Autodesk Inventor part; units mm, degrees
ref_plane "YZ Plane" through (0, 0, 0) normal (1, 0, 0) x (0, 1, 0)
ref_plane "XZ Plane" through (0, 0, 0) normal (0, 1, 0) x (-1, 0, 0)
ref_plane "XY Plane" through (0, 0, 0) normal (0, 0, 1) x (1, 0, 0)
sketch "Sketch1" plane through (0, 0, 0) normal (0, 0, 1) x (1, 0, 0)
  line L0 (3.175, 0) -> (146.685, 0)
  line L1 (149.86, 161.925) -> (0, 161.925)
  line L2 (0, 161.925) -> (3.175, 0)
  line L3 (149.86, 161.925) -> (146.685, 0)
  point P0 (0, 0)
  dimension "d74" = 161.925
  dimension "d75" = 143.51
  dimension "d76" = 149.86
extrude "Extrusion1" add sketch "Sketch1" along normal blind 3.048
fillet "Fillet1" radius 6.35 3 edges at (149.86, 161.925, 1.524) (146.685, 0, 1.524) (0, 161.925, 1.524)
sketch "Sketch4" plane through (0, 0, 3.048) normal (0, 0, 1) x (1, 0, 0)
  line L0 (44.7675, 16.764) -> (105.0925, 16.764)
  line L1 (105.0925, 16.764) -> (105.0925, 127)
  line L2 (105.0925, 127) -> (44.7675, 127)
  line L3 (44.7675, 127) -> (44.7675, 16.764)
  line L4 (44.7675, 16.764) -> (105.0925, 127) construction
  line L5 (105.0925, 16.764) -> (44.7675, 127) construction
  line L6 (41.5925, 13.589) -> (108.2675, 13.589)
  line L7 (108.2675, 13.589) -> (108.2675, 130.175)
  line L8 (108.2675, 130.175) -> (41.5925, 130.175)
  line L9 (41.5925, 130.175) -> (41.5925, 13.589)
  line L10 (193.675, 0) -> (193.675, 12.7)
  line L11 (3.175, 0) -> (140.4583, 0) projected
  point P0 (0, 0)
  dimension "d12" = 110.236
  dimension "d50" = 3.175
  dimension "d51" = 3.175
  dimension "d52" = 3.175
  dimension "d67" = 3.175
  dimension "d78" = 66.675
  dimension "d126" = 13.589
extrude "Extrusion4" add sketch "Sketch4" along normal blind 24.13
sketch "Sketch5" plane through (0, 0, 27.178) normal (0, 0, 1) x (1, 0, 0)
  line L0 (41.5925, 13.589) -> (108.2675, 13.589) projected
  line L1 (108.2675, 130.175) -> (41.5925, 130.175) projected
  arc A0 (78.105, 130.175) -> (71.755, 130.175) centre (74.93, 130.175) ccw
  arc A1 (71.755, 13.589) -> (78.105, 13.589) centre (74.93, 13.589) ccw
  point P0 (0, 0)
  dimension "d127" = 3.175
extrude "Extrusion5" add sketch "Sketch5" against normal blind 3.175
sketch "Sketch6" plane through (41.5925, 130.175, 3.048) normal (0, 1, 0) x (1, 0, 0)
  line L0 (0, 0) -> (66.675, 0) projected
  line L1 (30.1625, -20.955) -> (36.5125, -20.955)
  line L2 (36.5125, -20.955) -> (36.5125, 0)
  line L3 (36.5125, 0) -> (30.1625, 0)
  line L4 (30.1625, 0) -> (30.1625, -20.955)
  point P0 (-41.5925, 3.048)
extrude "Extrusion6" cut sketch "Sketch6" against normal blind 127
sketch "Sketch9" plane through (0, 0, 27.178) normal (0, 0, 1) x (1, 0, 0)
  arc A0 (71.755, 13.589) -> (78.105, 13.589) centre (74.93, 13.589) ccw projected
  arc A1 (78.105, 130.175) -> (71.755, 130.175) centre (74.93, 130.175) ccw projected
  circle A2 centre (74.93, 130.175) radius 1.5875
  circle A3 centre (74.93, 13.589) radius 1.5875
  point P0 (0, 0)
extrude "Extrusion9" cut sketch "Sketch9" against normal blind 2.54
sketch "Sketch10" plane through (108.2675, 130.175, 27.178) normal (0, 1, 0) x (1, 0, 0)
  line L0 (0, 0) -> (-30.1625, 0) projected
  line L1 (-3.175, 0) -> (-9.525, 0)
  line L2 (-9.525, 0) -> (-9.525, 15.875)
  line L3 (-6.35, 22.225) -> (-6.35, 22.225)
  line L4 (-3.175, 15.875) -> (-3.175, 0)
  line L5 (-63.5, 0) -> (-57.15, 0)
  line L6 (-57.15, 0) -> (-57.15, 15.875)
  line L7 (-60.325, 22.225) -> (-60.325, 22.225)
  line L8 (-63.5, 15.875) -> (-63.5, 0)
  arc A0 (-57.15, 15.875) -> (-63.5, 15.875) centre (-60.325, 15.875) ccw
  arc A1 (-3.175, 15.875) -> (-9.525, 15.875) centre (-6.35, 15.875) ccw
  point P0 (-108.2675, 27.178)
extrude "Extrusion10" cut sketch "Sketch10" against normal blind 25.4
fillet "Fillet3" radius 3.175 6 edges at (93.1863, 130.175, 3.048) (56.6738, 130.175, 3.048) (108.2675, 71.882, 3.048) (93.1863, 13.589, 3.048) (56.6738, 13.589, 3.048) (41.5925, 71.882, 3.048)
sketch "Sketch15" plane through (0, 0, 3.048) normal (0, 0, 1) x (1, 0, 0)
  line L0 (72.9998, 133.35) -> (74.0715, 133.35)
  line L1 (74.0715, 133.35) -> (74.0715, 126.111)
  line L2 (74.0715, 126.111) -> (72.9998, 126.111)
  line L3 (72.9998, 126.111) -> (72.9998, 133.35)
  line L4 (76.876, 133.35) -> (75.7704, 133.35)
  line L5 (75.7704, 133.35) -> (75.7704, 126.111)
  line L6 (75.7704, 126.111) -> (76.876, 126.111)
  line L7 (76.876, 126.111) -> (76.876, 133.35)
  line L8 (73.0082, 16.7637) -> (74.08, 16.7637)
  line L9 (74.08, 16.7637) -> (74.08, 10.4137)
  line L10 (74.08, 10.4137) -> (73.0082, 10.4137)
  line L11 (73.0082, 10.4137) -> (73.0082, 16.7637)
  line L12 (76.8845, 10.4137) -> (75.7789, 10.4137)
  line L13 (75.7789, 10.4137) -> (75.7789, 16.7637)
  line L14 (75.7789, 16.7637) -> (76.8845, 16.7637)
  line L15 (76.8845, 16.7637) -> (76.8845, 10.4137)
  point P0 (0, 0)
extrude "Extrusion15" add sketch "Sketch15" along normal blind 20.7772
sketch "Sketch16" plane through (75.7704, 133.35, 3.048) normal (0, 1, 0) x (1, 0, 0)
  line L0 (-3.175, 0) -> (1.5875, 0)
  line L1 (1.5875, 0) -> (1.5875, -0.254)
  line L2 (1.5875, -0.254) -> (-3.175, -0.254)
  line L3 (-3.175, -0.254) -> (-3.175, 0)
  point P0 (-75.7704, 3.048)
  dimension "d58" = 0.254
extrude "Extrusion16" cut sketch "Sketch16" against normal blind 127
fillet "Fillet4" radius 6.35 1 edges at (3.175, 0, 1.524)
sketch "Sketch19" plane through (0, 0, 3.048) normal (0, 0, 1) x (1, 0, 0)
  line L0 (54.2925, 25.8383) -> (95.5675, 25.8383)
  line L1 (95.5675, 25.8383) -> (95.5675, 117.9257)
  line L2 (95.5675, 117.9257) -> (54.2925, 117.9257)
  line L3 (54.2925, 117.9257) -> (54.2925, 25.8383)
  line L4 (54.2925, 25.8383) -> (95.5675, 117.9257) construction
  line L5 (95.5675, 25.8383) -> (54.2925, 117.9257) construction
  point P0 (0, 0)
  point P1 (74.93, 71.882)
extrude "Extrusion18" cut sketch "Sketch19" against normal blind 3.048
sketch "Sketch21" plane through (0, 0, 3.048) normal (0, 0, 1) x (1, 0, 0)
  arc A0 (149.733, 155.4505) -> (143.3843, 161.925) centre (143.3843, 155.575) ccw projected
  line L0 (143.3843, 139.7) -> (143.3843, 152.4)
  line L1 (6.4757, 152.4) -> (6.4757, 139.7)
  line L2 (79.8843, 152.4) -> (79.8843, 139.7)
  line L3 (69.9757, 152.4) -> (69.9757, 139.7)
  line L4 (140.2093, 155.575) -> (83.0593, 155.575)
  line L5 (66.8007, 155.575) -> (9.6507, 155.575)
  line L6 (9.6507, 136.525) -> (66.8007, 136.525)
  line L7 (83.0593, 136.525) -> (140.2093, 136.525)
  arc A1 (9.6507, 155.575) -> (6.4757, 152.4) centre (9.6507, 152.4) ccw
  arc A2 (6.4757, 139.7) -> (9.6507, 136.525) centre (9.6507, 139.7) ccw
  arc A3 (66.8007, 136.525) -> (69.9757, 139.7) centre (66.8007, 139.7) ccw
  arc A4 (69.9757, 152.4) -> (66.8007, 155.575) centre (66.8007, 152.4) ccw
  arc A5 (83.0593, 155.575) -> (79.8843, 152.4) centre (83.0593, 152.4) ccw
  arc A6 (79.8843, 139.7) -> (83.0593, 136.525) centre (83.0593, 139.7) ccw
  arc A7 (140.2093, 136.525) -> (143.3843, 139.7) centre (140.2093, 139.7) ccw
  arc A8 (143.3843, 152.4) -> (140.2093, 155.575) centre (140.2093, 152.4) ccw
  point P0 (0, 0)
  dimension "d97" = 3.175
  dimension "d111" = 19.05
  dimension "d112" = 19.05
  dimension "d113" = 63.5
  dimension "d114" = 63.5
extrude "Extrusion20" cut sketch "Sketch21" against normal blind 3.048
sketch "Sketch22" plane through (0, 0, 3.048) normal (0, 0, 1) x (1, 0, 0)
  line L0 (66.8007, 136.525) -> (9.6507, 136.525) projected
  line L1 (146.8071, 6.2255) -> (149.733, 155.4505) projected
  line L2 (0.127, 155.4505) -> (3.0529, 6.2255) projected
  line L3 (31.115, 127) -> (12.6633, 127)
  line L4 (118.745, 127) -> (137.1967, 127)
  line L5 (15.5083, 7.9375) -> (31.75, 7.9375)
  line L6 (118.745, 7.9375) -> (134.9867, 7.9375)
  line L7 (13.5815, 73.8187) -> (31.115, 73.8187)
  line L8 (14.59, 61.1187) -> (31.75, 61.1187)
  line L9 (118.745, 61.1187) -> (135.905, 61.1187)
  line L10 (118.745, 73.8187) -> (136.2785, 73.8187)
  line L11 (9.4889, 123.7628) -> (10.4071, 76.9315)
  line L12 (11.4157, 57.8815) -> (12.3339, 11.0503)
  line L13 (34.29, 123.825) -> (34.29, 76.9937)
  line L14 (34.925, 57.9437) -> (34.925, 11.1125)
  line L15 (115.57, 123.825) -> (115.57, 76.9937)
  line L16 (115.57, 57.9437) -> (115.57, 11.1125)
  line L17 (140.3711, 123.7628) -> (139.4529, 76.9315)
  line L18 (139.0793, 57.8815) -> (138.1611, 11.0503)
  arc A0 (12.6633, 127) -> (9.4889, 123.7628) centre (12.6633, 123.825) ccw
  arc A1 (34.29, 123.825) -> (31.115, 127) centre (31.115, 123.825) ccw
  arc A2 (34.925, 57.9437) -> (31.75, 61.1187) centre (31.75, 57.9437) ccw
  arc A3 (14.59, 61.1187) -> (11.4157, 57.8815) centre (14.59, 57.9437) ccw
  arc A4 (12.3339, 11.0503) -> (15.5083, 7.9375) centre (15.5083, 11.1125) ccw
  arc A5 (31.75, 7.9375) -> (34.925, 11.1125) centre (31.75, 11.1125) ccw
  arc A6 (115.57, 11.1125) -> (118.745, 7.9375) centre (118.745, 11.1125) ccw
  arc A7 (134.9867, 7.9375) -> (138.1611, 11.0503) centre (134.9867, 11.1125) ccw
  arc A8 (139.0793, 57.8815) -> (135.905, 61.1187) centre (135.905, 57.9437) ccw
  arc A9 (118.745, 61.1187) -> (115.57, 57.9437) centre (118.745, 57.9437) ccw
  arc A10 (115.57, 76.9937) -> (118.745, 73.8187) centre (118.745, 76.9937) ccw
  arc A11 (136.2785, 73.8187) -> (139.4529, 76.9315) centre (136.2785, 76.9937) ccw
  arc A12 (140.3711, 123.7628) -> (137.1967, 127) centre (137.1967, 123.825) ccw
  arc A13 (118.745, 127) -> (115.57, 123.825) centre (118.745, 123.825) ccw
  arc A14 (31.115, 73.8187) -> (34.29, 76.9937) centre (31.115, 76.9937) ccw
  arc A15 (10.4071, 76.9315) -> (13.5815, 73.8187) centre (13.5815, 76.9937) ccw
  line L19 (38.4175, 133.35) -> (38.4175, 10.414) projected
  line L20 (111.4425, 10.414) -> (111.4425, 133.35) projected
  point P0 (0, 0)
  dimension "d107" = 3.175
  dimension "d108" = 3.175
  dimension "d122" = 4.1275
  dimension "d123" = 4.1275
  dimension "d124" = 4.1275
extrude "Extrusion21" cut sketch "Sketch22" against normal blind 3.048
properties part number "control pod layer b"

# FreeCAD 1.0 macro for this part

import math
import FreeCAD as App
import Part
import Sketcher
from FreeCAD import Vector
Q = App.Units.Quantity


def edges_at(feature, points):
    """Names of the edges that pass closest to the given points."""
    edges = feature.Shape.Edges
    near = lambda p: min(range(len(edges)), key=lambda i: edges[i].distToShape(Part.Vertex(*p))[0])
    return sorted({f"Edge{near(p) + 1}" for p in points})


def add_polygon(sketch, points):
    """Adds a closed chain of lines whose ends are joined by coincident constraints."""
    first, n = sketch.GeometryCount, len(points)
    for a, b in zip(points, points[1:] + points[:1]):
        sketch.addGeometry(Part.LineSegment(App.Vector(*a, 0), App.Vector(*b, 0)), False)
    for i in range(n):
        sketch.addConstraint(Sketcher.Constraint("Coincident", first + i, 2, first + (i + 1) % n, 1))

doc = App.newDocument("Part")
body = doc.addObject("PartDesign::Body", "Body")
body.AllowCompound = True

# Sketch on XY plane
sketch1 = doc.addObject("Sketcher::SketchObject", "Sketch")
body.addObject(sketch1)
sketch1.AttachmentSupport = (doc.XY_Plane, [""])
sketch1.MapMode = "FlatFace"
add_polygon(sketch1, [(0, 162), (3, 0), (147, 0), (150, 162)])  # lines 0-3
sketch1.addConstraint([
    Sketcher.Constraint("Horizontal", 1),
    Sketcher.Constraint("Horizontal", 3),
    Sketcher.Constraint("PointOnObject", 0, 2, -1),
    Sketcher.Constraint("PointOnObject", 3, 2, -2),
    Sketcher.Constraint("Equal", 0, 2),
    Sketcher.Constraint("DistanceX", 3, 2, 3, 1, Q("5.9 in")),
    Sketcher.Constraint("DistanceX", 1, 1, 1, 2, Q("5.65 in")),
    Sketcher.Constraint("DistanceY", -1, 1, 2, 2, Q("6.375 in")),
])
pad1 = doc.addObject("PartDesign::Pad", "Pad")
body.addObject(pad1)
pad1.Profile = sketch1
pad1.Length = Q("0.12 in")
doc.recompute()

fillet = doc.addObject("PartDesign::Fillet", "Fillet")
body.addObject(fillet)
fillet.Base = (pad1, edges_at(pad1, [(149.86, 161.925, 1.524), (146.685, 0, 1.524), (0, 161.925, 1.524)]))
fillet.Radius = Q("0.25 in")

# Sketch on XY plane
sketch2 = doc.addObject("Sketcher::SketchObject", "Sketch001")
body.addObject(sketch2)
sketch2.AttachmentSupport = (doc.XY_Plane, [""])
sketch2.MapMode = "FlatFace"
sketch2.AttachmentOffset = App.Placement(Vector(0, 0, 0.12 * 25.4), App.Rotation())
add_polygon(sketch2, [(42, 130), (42, 14), (108, 14), (108, 130)])  # lines 0-3
add_polygon(sketch2, [(105, 17), (45, 17), (45, 127), (105, 127)])  # lines 4-7
sketch2.addConstraint([
    Sketcher.Constraint("Vertical", 0),
    Sketcher.Constraint("Horizontal", 1),
    Sketcher.Constraint("Vertical", 2),
    Sketcher.Constraint("Horizontal", 3),
    Sketcher.Constraint("Horizontal", 4),
    Sketcher.Constraint("Vertical", 5),
    Sketcher.Constraint("Horizontal", 6),
    Sketcher.Constraint("Vertical", 7),
    Sketcher.Constraint("DistanceY", 5, 1, 5, 2, Q("4.34 in")),
    Sketcher.Constraint("DistanceX", 1, 1, 1, 2, Q("2.625 in")),
    Sketcher.Constraint("DistanceY", -1, 1, 0, 2, Q("0.535 in")),
    Sketcher.Constraint("DistanceY", -1, 1, 5, 2, Q("5 in")),
    Sketcher.Constraint("DistanceX", 0, 2, 4, 2, Q("0.125 in")),
    Sketcher.Constraint("DistanceY", 5, 2, 3, 2, Q("0.125 in")),
    Sketcher.Constraint("DistanceX", 6, 2, 2, 2, Q("0.125 in")),
    Sketcher.Constraint("DistanceX", -1, 1, 0, 2, Q("1.6375 in")),
])
pad2 = doc.addObject("PartDesign::Pad", "Pad001")
body.addObject(pad2)
pad2.Profile = sketch2
pad2.Length = Q("0.95 in")

# Sketch on XY plane
sketch3 = doc.addObject("Sketcher::SketchObject", "Sketch002")
body.addObject(sketch3)
sketch3.AttachmentSupport = (doc.XY_Plane, [""])
sketch3.MapMode = "FlatFace"
sketch3.AttachmentOffset = App.Placement(Vector(0, 0, 1.07 * 25.4), App.Rotation())
sketch3.addGeometry([
    Part.LineSegment(Vector(78.1, 13.6, 0), Vector(71.8, 13.6, 0)),
    Part.ArcOfCircle(Part.Circle(Vector(74.9, 13.6, 0), Vector(0, 0, 1), 3.2), math.radians(180), math.radians(360)),
    Part.LineSegment(Vector(71.8, 130.2, 0), Vector(78.1, 130.2, 0)),
    Part.ArcOfCircle(Part.Circle(Vector(74.9, 130.2, 0), Vector(0, 0, 1), 3.2), math.radians(0), math.radians(180)),
], False)
sketch3.addConstraint([
    Sketcher.Constraint("Coincident", 0, 1, 1, 2),
    Sketcher.Constraint("Coincident", 1, 1, 0, 2),
    Sketcher.Constraint("Coincident", 2, 1, 3, 2),
    Sketcher.Constraint("Coincident", 3, 1, 2, 2),
    Sketcher.Constraint("Horizontal", 0),
    Sketcher.Constraint("Horizontal", 2),
    Sketcher.Constraint("Equal", 1, 3),
    Sketcher.Constraint("Horizontal", 1, 3, 0, 1),
    Sketcher.Constraint("Horizontal", 3, 3, 2, 1),
    Sketcher.Constraint("Vertical", 1, 3, 3, 3),
    Sketcher.Constraint("Radius", 1, Q("0.125 in")),
    Sketcher.Constraint("DistanceX", -1, 1, 1, 3, Q("2.95 in")),
    Sketcher.Constraint("DistanceY", 1, 3, 3, 3, Q("4.59 in")),
    Sketcher.Constraint("DistanceY", -1, 1, 1, 3, Q("0.535 in")),
])
pad3 = doc.addObject("PartDesign::Pad", "Pad002")
body.addObject(pad3)
pad3.Profile = sketch3
pad3.Length = Q("0.125 in")
pad3.Reversed = True

# Sketch on XZ plane
sketch4 = doc.addObject("Sketcher::SketchObject", "Sketch003")
body.addObject(sketch4)
sketch4.AttachmentSupport = (doc.XZ_Plane, [""])
sketch4.MapMode = "FlatFace"
sketch4.AttachmentOffset = App.Placement(Vector(0, 0, -5.125 * 25.4), App.Rotation())
add_polygon(sketch4, [(78, 3), (72, 3), (72, 24), (78, 24)])  # lines 0-3
sketch4.addConstraint([
    Sketcher.Constraint("Horizontal", 0),
    Sketcher.Constraint("Vertical", 1),
    Sketcher.Constraint("Horizontal", 2),
    Sketcher.Constraint("Vertical", 3),
    Sketcher.Constraint("DistanceX", 0, 2, 0, 1, Q("0.25 in")),
    Sketcher.Constraint("DistanceY", 1, 1, 1, 2, Q("0.825 in")),
    Sketcher.Constraint("DistanceY", -1, 1, 0, 2, Q("0.12 in")),
    Sketcher.Constraint("DistanceX", -1, 1, 0, 2, Q("2.825 in")),
])
pocket1 = doc.addObject("PartDesign::Pocket", "Pocket")
body.addObject(pocket1)
pocket1.Profile = sketch4
pocket1.Length = Q("5 in")
pocket1.Reversed = True

# Sketch on XY plane
sketch5 = doc.addObject("Sketcher::SketchObject", "Sketch004")
body.addObject(sketch5)
sketch5.AttachmentSupport = (doc.XY_Plane, [""])
sketch5.MapMode = "FlatFace"
sketch5.AttachmentOffset = App.Placement(Vector(0, 0, 1.07 * 25.4), App.Rotation())
sketch5.addGeometry([
    Part.Circle(Vector(74.9, 130.2, 0), Vector(0, 0, 1), 1.6),
    Part.Circle(Vector(74.9, 13.6, 0), Vector(0, 0, 1), 1.6),
], False)
sketch5.addConstraint([
    Sketcher.Constraint("Equal", 0, 1),
    Sketcher.Constraint("Vertical", 0, 3, 1, 3),
    Sketcher.Constraint("Diameter", 0, Q("0.125 in")),
    Sketcher.Constraint("DistanceX", -1, 1, 0, 3, Q("2.95 in")),
    Sketcher.Constraint("DistanceY", 1, 3, 0, 3, Q("4.59 in")),
    Sketcher.Constraint("DistanceY", -1, 1, 0, 3, Q("5.125 in")),
])
pocket2 = doc.addObject("PartDesign::Pocket", "Pocket001")
body.addObject(pocket2)
pocket2.Profile = sketch5
pocket2.Length = Q("0.1 in")

# Sketch on XZ plane
sketch6 = doc.addObject("Sketcher::SketchObject", "Sketch005")
body.addObject(sketch6)
sketch6.AttachmentSupport = (doc.XZ_Plane, [""])
sketch6.MapMode = "FlatFace"
sketch6.AttachmentOffset = App.Placement(Vector(0, 0, -5.125 * 25.4), App.Rotation())
sketch6.addGeometry([
    Part.LineSegment(Vector(98.7, 27.2, 0), Vector(105.1, 27.2, 0)),  # 0
    Part.LineSegment(Vector(105.1, 27.2, 0), Vector(105.1, 11.3, 0)),  # 1
    Part.ArcOfCircle(Part.Circle(Vector(101.9, 11.3, 0), Vector(0, 0, 1), 3.2), math.radians(180), math.radians(360)),  # 2
    Part.LineSegment(Vector(98.7, 11.3, 0), Vector(98.7, 27.2, 0)),  # 3
    Part.LineSegment(Vector(44.8, 11.3, 0), Vector(44.8, 27.2, 0)),  # 4
    Part.LineSegment(Vector(44.8, 27.2, 0), Vector(51.1, 27.2, 0)),  # 5
    Part.LineSegment(Vector(51.1, 27.2, 0), Vector(51.1, 11.3, 0)),  # 6
    Part.ArcOfCircle(Part.Circle(Vector(47.9, 11.3, 0), Vector(0, 0, 1), 3.2), math.radians(180), math.radians(360)),  # 7
], False)
sketch6.addConstraint([
    Sketcher.Constraint("Coincident", 0, 2, 1, 1),
    Sketcher.Constraint("Tangent", 1, 2, 2, 2),
    Sketcher.Constraint("Tangent", 2, 1, 3, 1),
    Sketcher.Constraint("Coincident", 3, 2, 0, 1),
    Sketcher.Constraint("Coincident", 4, 2, 5, 1),
    Sketcher.Constraint("Coincident", 5, 2, 6, 1),
    Sketcher.Constraint("Tangent", 6, 2, 7, 2),
    Sketcher.Constraint("Tangent", 7, 1, 4, 1),
    Sketcher.Constraint("Horizontal", 0),
    Sketcher.Constraint("Vertical", 1),
    Sketcher.Constraint("Vertical", 3),
    Sketcher.Constraint("Vertical", 4),
    Sketcher.Constraint("Horizontal", 5),
    Sketcher.Constraint("Vertical", 6),
    Sketcher.Constraint("Equal", 2, 7),
    Sketcher.Constraint("Horizontal", 2, 3, 7, 3),
    Sketcher.Constraint("Horizontal", 3, 2, 4, 2),
    Sketcher.Constraint("Radius", 2, Q("0.125 in")),
    Sketcher.Constraint("DistanceX", 7, 3, 2, 1, Q("2 in")),
    Sketcher.Constraint("DistanceY", 1, 2, 1, 1, Q("0.625 in")),
    Sketcher.Constraint("DistanceY", -1, 1, 0, 2, Q("1.07 in")),
    Sketcher.Constraint("DistanceX", -1, 1, 2, 3, Q("4.0125 in")),
])
pocket3 = doc.addObject("PartDesign::Pocket", "Pocket002")
body.addObject(pocket3)
pocket3.Profile = sketch6
pocket3.Length = Q("1 in")
pocket3.Reversed = True
doc.recompute()

fillet2 = doc.addObject("PartDesign::Fillet", "Fillet001")
body.addObject(fillet2)
fillet2.Base = (pocket3, edges_at(pocket3, [
    (93.186, 130.175, 3.048),
    (56.674, 130.175, 3.048),
    (108.267, 71.882, 3.048),
    (93.186, 13.589, 3.048),
    (56.674, 13.589, 3.048),
    (41.593, 71.882, 3.048),
]))
fillet2.Radius = Q("0.125 in")

# Sketch on XY plane
sketch7 = doc.addObject("Sketcher::SketchObject", "Sketch006")
body.addObject(sketch7)
sketch7.AttachmentSupport = (doc.XY_Plane, [""])
sketch7.MapMode = "FlatFace"
sketch7.AttachmentOffset = App.Placement(Vector(0, 0, 0.12 * 25.4), App.Rotation())
add_polygon(sketch7, [(74.1, 133.3), (73, 133.3), (73, 126.1), (74.1, 126.1)])  # lines 0-3
add_polygon(sketch7, [(76.9, 126.1), (76.9, 133.3), (75.8, 133.3), (75.8, 126.1)])  # lines 4-7
add_polygon(sketch7, [(74.1, 16.8), (73, 16.8), (73, 10.4), (74.1, 10.4)])  # lines 8-11
add_polygon(sketch7, [(75.8, 10.4), (76.9, 10.4), (76.9, 16.8), (75.8, 16.8)])  # lines 12-15
sketch7.addConstraint([
    Sketcher.Constraint("Horizontal", 0),
    Sketcher.Constraint("Vertical", 1),
    Sketcher.Constraint("Horizontal", 2),
    Sketcher.Constraint("Vertical", 3),
    Sketcher.Constraint("Vertical", 4),
    Sketcher.Constraint("Horizontal", 5),
    Sketcher.Constraint("Vertical", 6),
    Sketcher.Constraint("Horizontal", 7),
    Sketcher.Constraint("Horizontal", 8),
    Sketcher.Constraint("Vertical", 9),
    Sketcher.Constraint("Horizontal", 10),
    Sketcher.Constraint("Vertical", 11),
    Sketcher.Constraint("Horizontal", 12),
    Sketcher.Constraint("Vertical", 13),
    Sketcher.Constraint("Horizontal", 14),
    Sketcher.Constraint("Vertical", 15),
    Sketcher.Constraint("Horizontal", 3, 2, 4, 2),
    Sketcher.Constraint("Horizontal", 2, 2, 6, 2),
    Sketcher.Constraint("Horizontal", 10, 2, 12, 2),
    Sketcher.Constraint("Horizontal", 11, 2, 13, 2),
    Sketcher.Constraint("Equal", 2, 8),
    Sketcher.Constraint("Equal", 7, 12),
    Sketcher.Constraint("DistanceY", 9, 2, 9, 1, Q("0.25 in")),
    Sketcher.Constraint("DistanceY", 1, 2, 1, 1, Q("0.285 in")),
    Sketcher.Constraint("DistanceY", -1, 1, 0, 2, Q("5.25 in")),
    Sketcher.Constraint("DistanceY", -1, 1, 8, 2, Q("0.66 in")),
    Sketcher.Constraint("DistanceX", 0, 2, 0, 1, Q("0.0422 in")),
    Sketcher.Constraint("DistanceX", -1, 1, 0, 2, Q("2.874 in")),
    Sketcher.Constraint("DistanceX", 5, 2, 5, 1, 1.1056),
    Sketcher.Constraint("DistanceX", 0, 2, 4, 2, Q("0.1526 in")),
    Sketcher.Constraint("DistanceX", 9, 2, 12, 2, Q("0.1526 in")),
    Sketcher.Constraint("DistanceX", -1, 1, 8, 2, 73.0082),
])
pad4 = doc.addObject("PartDesign::Pad", "Pad003")
body.addObject(pad4)
pad4.Profile = sketch7
pad4.Length = Q("0.818 in")

# Sketch on XZ plane
sketch8 = doc.addObject("Sketcher::SketchObject", "Sketch007")
body.addObject(sketch8)
sketch8.AttachmentSupport = (doc.XZ_Plane, [""])
sketch8.MapMode = "FlatFace"
sketch8.AttachmentOffset = App.Placement(Vector(0, 0, -5.25 * 25.4), App.Rotation())
add_polygon(sketch8, [(77.36, 3.05), (72.6, 3.05), (72.6, 3.3), (77.36, 3.3)])  # lines 0-3
sketch8.addConstraint([
    Sketcher.Constraint("Horizontal", 0),
    Sketcher.Constraint("Vertical", 1),
    Sketcher.Constraint("Horizontal", 2),
    Sketcher.Constraint("Vertical", 3),
    Sketcher.Constraint("DistanceY", 1, 1, 1, 2, Q("0.01 in")),
    Sketcher.Constraint("DistanceX", 0, 2, 0, 1, Q("0.1875 in")),
    Sketcher.Constraint("DistanceY", -1, 1, 0, 2, Q("0.12 in")),
    Sketcher.Constraint("DistanceX", -1, 1, 0, 2, 72.5954),
])
pocket4 = doc.addObject("PartDesign::Pocket", "Pocket003")
body.addObject(pocket4)
pocket4.Profile = sketch8
pocket4.Length = Q("5 in")
pocket4.Reversed = True
doc.recompute()

fillet3 = doc.addObject("PartDesign::Fillet", "Fillet002")
body.addObject(fillet3)
fillet3.Base = (pocket4, edges_at(pocket4, [(3.175, 0, 1.524)]))
fillet3.Radius = Q("0.25 in")

# Sketch on XY plane
sketch9 = doc.addObject("Sketcher::SketchObject", "Sketch008")
body.addObject(sketch9)
sketch9.AttachmentSupport = (doc.XY_Plane, [""])
sketch9.MapMode = "FlatFace"
sketch9.AttachmentOffset = App.Placement(Vector(0, 0, 0.12 * 25.4), App.Rotation())
add_polygon(sketch9, [(54, 118), (54, 26), (96, 26), (96, 118)])  # lines 0-3
sketch9.addConstraint([
    Sketcher.Constraint("Vertical", 0),
    Sketcher.Constraint("Horizontal", 1),
    Sketcher.Constraint("Vertical", 2),
    Sketcher.Constraint("Horizontal", 3),
    Sketcher.Constraint("DistanceX", 1, 1, 1, 2, Q("1.625 in")),
    Sketcher.Constraint("DistanceY", 0, 2, 0, 1, Q("3.6255 in")),
    Sketcher.Constraint("DistanceX", -1, 1, 0, 2, Q("2.1375 in")),
    Sketcher.Constraint("DistanceY", -1, 1, 0, 2, 25.8383),
])
pocket5 = doc.addObject("PartDesign::Pocket", "Pocket004")
body.addObject(pocket5)
pocket5.Profile = sketch9
pocket5.Length = Q("0.12 in")

# Sketch on XY plane
sketch10 = doc.addObject("Sketcher::SketchObject", "Sketch009")
body.addObject(sketch10)
sketch10.AttachmentSupport = (doc.XY_Plane, [""])
sketch10.MapMode = "FlatFace"
sketch10.AttachmentOffset = App.Placement(Vector(0, 0, 0.12 * 25.4), App.Rotation())
sketch10.addGeometry([
    Part.ArcOfCircle(Part.Circle(Vector(140.2, 139.7, 0), Vector(0, 0, 1), 3.2), math.radians(-90), math.radians(0)),  # 0
    Part.LineSegment(Vector(143.4, 139.7, 0), Vector(143.4, 152.4, 0)),  # 1
    Part.ArcOfCircle(Part.Circle(Vector(140.2, 152.4, 0), Vector(0, 0, 1), 3.2), math.radians(0), math.radians(90)),  # 2
    Part.LineSegment(Vector(140.2, 155.6, 0), Vector(83.1, 155.6, 0)),  # 3
    Part.ArcOfCircle(Part.Circle(Vector(83.1, 152.4, 0), Vector(0, 0, 1), 3.2), math.radians(90), math.radians(180)),  # 4
    Part.LineSegment(Vector(79.9, 152.4, 0), Vector(79.9, 139.7, 0)),  # 5
    Part.ArcOfCircle(Part.Circle(Vector(83.1, 139.7, 0), Vector(0, 0, 1), 3.2), math.radians(180), math.radians(270)),  # 6
    Part.LineSegment(Vector(83.1, 136.5, 0), Vector(140.2, 136.5, 0)),  # 7
    Part.ArcOfCircle(Part.Circle(Vector(9.7, 152.4, 0), Vector(0, 0, 1), 3.2), math.radians(90), math.radians(180)),  # 8
    Part.LineSegment(Vector(6.5, 152.4, 0), Vector(6.5, 139.7, 0)),  # 9
    Part.ArcOfCircle(Part.Circle(Vector(9.7, 139.7, 0), Vector(0, 0, 1), 3.2), math.radians(180), math.radians(270)),  # 10
    Part.LineSegment(Vector(9.7, 136.5, 0), Vector(66.8, 136.5, 0)),  # 11
    Part.ArcOfCircle(Part.Circle(Vector(66.8, 139.7, 0), Vector(0, 0, 1), 3.2), math.radians(-90), math.radians(0)),  # 12
    Part.LineSegment(Vector(70, 139.7, 0), Vector(70, 152.4, 0)),  # 13
    Part.ArcOfCircle(Part.Circle(Vector(66.8, 152.4, 0), Vector(0, 0, 1), 3.2), math.radians(0), math.radians(90)),  # 14
    Part.LineSegment(Vector(66.8, 155.6, 0), Vector(9.7, 155.6, 0)),  # 15
], False)
sketch10.addConstraint([
    Sketcher.Constraint("Tangent", 0, 2, 1, 1),
    Sketcher.Constraint("Tangent", 1, 2, 2, 1),
    Sketcher.Constraint("Tangent", 2, 2, 3, 1),
    Sketcher.Constraint("Tangent", 3, 2, 4, 1),
    Sketcher.Constraint("Tangent", 4, 2, 5, 1),
    Sketcher.Constraint("Tangent", 5, 2, 6, 1),
    Sketcher.Constraint("Tangent", 6, 2, 7, 1),
    Sketcher.Constraint("Tangent", 7, 2, 0, 1),
    Sketcher.Constraint("Tangent", 8, 2, 9, 1),
    Sketcher.Constraint("Tangent", 9, 2, 10, 1),
    Sketcher.Constraint("Tangent", 10, 2, 11, 1),
    Sketcher.Constraint("Tangent", 11, 2, 12, 1),
    Sketcher.Constraint("Tangent", 12, 2, 13, 1),
    Sketcher.Constraint("Tangent", 13, 2, 14, 1),
    Sketcher.Constraint("Tangent", 14, 2, 15, 1),
    Sketcher.Constraint("Tangent", 15, 2, 8, 1),
    Sketcher.Constraint("Vertical", 1),
    Sketcher.Constraint("Horizontal", 3),
    Sketcher.Constraint("Vertical", 5),
    Sketcher.Constraint("Horizontal", 7),
    Sketcher.Constraint("Vertical", 9),
    Sketcher.Constraint("Horizontal", 11),
    Sketcher.Constraint("Vertical", 13),
    Sketcher.Constraint("Horizontal", 15),
    Sketcher.Constraint("Equal", 0, 2),
    Sketcher.Constraint("Equal", 2, 4),
    Sketcher.Constraint("Equal", 4, 6),
    Sketcher.Constraint("Equal", 6, 8),
    Sketcher.Constraint("Equal", 8, 10),
    Sketcher.Constraint("Equal", 10, 12),
    Sketcher.Constraint("Equal", 12, 14),
    Sketcher.Constraint("Horizontal", 4, 3, 8, 3),
    Sketcher.Constraint("Horizontal", 6, 3, 10, 3),
    Sketcher.Constraint("Equal", 7, 11),
    Sketcher.Constraint("Radius", 0, Q("0.125 in")),
    Sketcher.Constraint("DistanceY", 7, 2, 2, 2, Q("0.75 in")),
    Sketcher.Constraint("DistanceY", -1, 1, 2, 3, Q("6 in")),
    Sketcher.Constraint("DistanceX", 3, 2, 3, 1, Q("2.25 in")),
    Sketcher.Constraint("DistanceX", 8, 3, 4, 3, Q("2.8901 in")),
    Sketcher.Constraint("DistanceX", -1, 1, 0, 3, 140.2093),
])
pocket6 = doc.addObject("PartDesign::Pocket", "Pocket005")
body.addObject(pocket6)
pocket6.Profile = sketch10
pocket6.Length = Q("0.12 in")

# Sketch on XY plane
sketch11 = doc.addObject("Sketcher::SketchObject", "Sketch010")
body.addObject(sketch11)
sketch11.AttachmentSupport = (doc.XY_Plane, [""])
sketch11.MapMode = "FlatFace"
sketch11.AttachmentOffset = App.Placement(Vector(0, 0, 0.12 * 25.4), App.Rotation())
sketch11.addGeometry([
    Part.ArcOfCircle(Part.Circle(Vector(31.1, 123.8, 0), Vector(0, 0, 1), 3.2), math.radians(0), math.radians(90)),  # 0
    Part.LineSegment(Vector(31.1, 127, 0), Vector(12.7, 127, 0)),  # 1
    Part.ArcOfCircle(Part.Circle(Vector(12.7, 123.8, 0), Vector(0, 0, 1), 3.2), math.radians(90), math.radians(181)),  # 2
    Part.LineSegment(Vector(9.5, 123.8, 0), Vector(10.4, 76.9, 0)),  # 3
    Part.ArcOfCircle(Part.Circle(Vector(13.6, 77, 0), Vector(0, 0, 1), 3.2), math.radians(-179), math.radians(-90)),  # 4
    Part.LineSegment(Vector(13.6, 73.8, 0), Vector(31.1, 73.8, 0)),  # 5
    Part.ArcOfCircle(Part.Circle(Vector(31.1, 77, 0), Vector(0, 0, 1), 3.2), math.radians(-90), math.radians(0)),  # 6
    Part.LineSegment(Vector(34.3, 77, 0), Vector(34.3, 123.8, 0)),  # 7
    Part.LineSegment(Vector(137.2, 127, 0), Vector(118.7, 127, 0)),  # 8
    Part.ArcOfCircle(Part.Circle(Vector(118.7, 123.8, 0), Vector(0, 0, 1), 3.2), math.radians(90), math.radians(180)),  # 9
    Part.LineSegment(Vector(115.6, 123.8, 0), Vector(115.6, 77, 0)),  # 10
    Part.ArcOfCircle(Part.Circle(Vector(118.7, 77, 0), Vector(0, 0, 1), 3.2), math.radians(180), math.radians(270)),  # 11
    Part.LineSegment(Vector(118.7, 73.8, 0), Vector(136.3, 73.8, 0)),  # 12
    Part.ArcOfCircle(Part.Circle(Vector(136.3, 77, 0), Vector(0, 0, 1), 3.2), math.radians(-90), math.radians(-1)),  # 13
    Part.LineSegment(Vector(139.5, 76.9, 0), Vector(140.4, 123.8, 0)),  # 14
    Part.ArcOfCircle(Part.Circle(Vector(137.2, 123.8, 0), Vector(0, 0, 1), 3.2), math.radians(-1), math.radians(90)),  # 15
    Part.ArcOfCircle(Part.Circle(Vector(15.5, 11.1, 0), Vector(0, 0, 1), 3.2), math.radians(-179), math.radians(-90)),  # 16
    Part.LineSegment(Vector(15.5, 7.9, 0), Vector(31.8, 7.9, 0)),  # 17
    Part.ArcOfCircle(Part.Circle(Vector(31.8, 11.1, 0), Vector(0, 0, 1), 3.2), math.radians(-90), math.radians(0)),  # 18
    Part.LineSegment(Vector(34.9, 11.1, 0), Vector(34.9, 57.9, 0)),  # 19
    Part.ArcOfCircle(Part.Circle(Vector(31.8, 57.9, 0), Vector(0, 0, 1), 3.2), math.radians(0), math.radians(90)),  # 20
    Part.LineSegment(Vector(31.8, 61.1, 0), Vector(14.6, 61.1, 0)),  # 21
    Part.ArcOfCircle(Part.Circle(Vector(14.6, 57.9, 0), Vector(0, 0, 1), 3.2), math.radians(90), math.radians(181)),  # 22
    Part.LineSegment(Vector(11.4, 57.9, 0), Vector(12.3, 11.1, 0)),  # 23
    Part.ArcOfCircle(Part.Circle(Vector(118.7, 11.1, 0), Vector(0, 0, 1), 3.2), math.radians(180), math.radians(270)),  # 24
    Part.LineSegment(Vector(118.7, 7.9, 0), Vector(135, 7.9, 0)),  # 25
    Part.ArcOfCircle(Part.Circle(Vector(135, 11.1, 0), Vector(0, 0, 1), 3.2), math.radians(-90), math.radians(-1)),  # 26
    Part.LineSegment(Vector(138.2, 11.1, 0), Vector(139.1, 57.9, 0)),  # 27
    Part.ArcOfCircle(Part.Circle(Vector(135.9, 57.9, 0), Vector(0, 0, 1), 3.2), math.radians(-1), math.radians(90)),  # 28
    Part.LineSegment(Vector(135.9, 61.1, 0), Vector(118.7, 61.1, 0)),  # 29
    Part.ArcOfCircle(Part.Circle(Vector(118.7, 57.9, 0), Vector(0, 0, 1), 3.2), math.radians(90), math.radians(180)),  # 30
    Part.LineSegment(Vector(115.6, 57.9, 0), Vector(115.6, 11.1, 0)),  # 31
], False)
sketch11.addConstraint([
    Sketcher.Constraint("Tangent", 0, 2, 1, 1),
    Sketcher.Constraint("Tangent", 1, 2, 2, 1),
    Sketcher.Constraint("Tangent", 2, 2, 3, 1),
    Sketcher.Constraint("Tangent", 3, 2, 4, 1),
    Sketcher.Constraint("Tangent", 4, 2, 5, 1),
    Sketcher.Constraint("Tangent", 5, 2, 6, 1),
    Sketcher.Constraint("Tangent", 6, 2, 7, 1),
    Sketcher.Constraint("Tangent", 7, 2, 0, 1),
    Sketcher.Constraint("Tangent", 8, 2, 9, 1),
    Sketcher.Constraint("Tangent", 9, 2, 10, 1),
    Sketcher.Constraint("Tangent", 10, 2, 11, 1),
    Sketcher.Constraint("Tangent", 11, 2, 12, 1),
    Sketcher.Constraint("Tangent", 12, 2, 13, 1),
    Sketcher.Constraint("Tangent", 13, 2, 14, 1),
    Sketcher.Constraint("Tangent", 14, 2, 15, 1),
    Sketcher.Constraint("Tangent", 15, 2, 8, 1),
    Sketcher.Constraint("Tangent", 16, 2, 17, 1),
    Sketcher.Constraint("Tangent", 17, 2, 18, 1),
    Sketcher.Constraint("Tangent", 18, 2, 19, 1),
    Sketcher.Constraint("Tangent", 19, 2, 20, 1),
    Sketcher.Constraint("Tangent", 20, 2, 21, 1),
    Sketcher.Constraint("Tangent", 21, 2, 22, 1),
    Sketcher.Constraint("Tangent", 22, 2, 23, 1),
    Sketcher.Constraint("Tangent", 23, 2, 16, 1),
    Sketcher.Constraint("Tangent", 24, 2, 25, 1),
    Sketcher.Constraint("Tangent", 25, 2, 26, 1),
    Sketcher.Constraint("Tangent", 26, 2, 27, 1),
    Sketcher.Constraint("Tangent", 27, 2, 28, 1),
    Sketcher.Constraint("Tangent", 28, 2, 29, 1),
    Sketcher.Constraint("Tangent", 29, 2, 30, 1),
    Sketcher.Constraint("Tangent", 30, 2, 31, 1),
    Sketcher.Constraint("Tangent", 31, 2, 24, 1),
    Sketcher.Constraint("Horizontal", 1),
    Sketcher.Constraint("Horizontal", 5),
    Sketcher.Constraint("Vertical", 7),
    Sketcher.Constraint("Horizontal", 8),
    Sketcher.Constraint("Vertical", 10),
    Sketcher.Constraint("Horizontal", 12),
    Sketcher.Constraint("Horizontal", 17),
    Sketcher.Constraint("Vertical", 19),
    Sketcher.Constraint("Horizontal", 21),
    Sketcher.Constraint("Horizontal", 25),
    Sketcher.Constraint("Horizontal", 29),
    Sketcher.Constraint("Vertical", 31),
    Sketcher.Constraint("Equal", 0, 2),
    Sketcher.Constraint("Equal", 2, 4),
    Sketcher.Constraint("Equal", 4, 6),
    Sketcher.Constraint("Equal", 6, 9),
    Sketcher.Constraint("Equal", 9, 11),
    Sketcher.Constraint("Equal", 11, 13),
    Sketcher.Constraint("Equal", 13, 15),
    Sketcher.Constraint("Equal", 15, 16),
    Sketcher.Constraint("Equal", 16, 18),
    Sketcher.Constraint("Equal", 18, 20),
    Sketcher.Constraint("Equal", 20, 22),
    Sketcher.Constraint("Equal", 22, 24),
    Sketcher.Constraint("Equal", 24, 26),
    Sketcher.Constraint("Equal", 26, 28),
    Sketcher.Constraint("Equal", 28, 30),
    Sketcher.Constraint("Parallel", 3, 23),
    Sketcher.Constraint("Parallel", 14, 27),
    Sketcher.Constraint("Horizontal", 2, 3, 9, 3),
    Sketcher.Constraint("Horizontal", 6, 3, 11, 3),
    Sketcher.Constraint("Horizontal", 18, 3, 24, 3),
    Sketcher.Constraint("Horizontal", 22, 3, 28, 3),
    Sketcher.Constraint("Horizontal", 3, 2, 13, 2),
    Sketcher.Constraint("Vertical", 11, 3, 24, 3),
    Sketcher.Constraint("Equal", 1, 8),
    Sketcher.Constraint("Equal", 17, 25),
    Sketcher.Constraint("Equal", 10, 19),
    Sketcher.Constraint("Radius", 0, Q("0.125 in")),
    Sketcher.Constraint("DistanceY", -1, 1, 0, 2, Q("5 in")),
    Sketcher.Constraint("DistanceX", 20, 3, 6, 2, Q("0.1 in")),
    Sketcher.Constraint("DistanceY", 20, 2, 5, 2, Q("0.5 in")),
    Sketcher.Constraint("DistanceY", 7, 1, 7, 2, Q("1.843752 in")),
    Sketcher.Constraint("DistanceX", -1, 1, 18, 3, Q("1.25 in")),
    Sketcher.Constraint("DistanceX", -1, 1, 9, 2, Q("4.55 in")),
    Sketcher.Constraint("DistanceX", 5, 1, 5, 2, Q("0.6903 in")),
    Sketcher.Constraint("DistanceX", 21, 2, 21, 1, Q("0.6756 in")),
    Sketcher.Constraint("DistanceX", 2, 3, 16, 3, Q("0.112 in")),
])
pocket7 = doc.addObject("PartDesign::Pocket", "Pocket006")
body.addObject(pocket7)
pocket7.Profile = sketch11
pocket7.Length = Q("0.12 in")

doc.recompute()
